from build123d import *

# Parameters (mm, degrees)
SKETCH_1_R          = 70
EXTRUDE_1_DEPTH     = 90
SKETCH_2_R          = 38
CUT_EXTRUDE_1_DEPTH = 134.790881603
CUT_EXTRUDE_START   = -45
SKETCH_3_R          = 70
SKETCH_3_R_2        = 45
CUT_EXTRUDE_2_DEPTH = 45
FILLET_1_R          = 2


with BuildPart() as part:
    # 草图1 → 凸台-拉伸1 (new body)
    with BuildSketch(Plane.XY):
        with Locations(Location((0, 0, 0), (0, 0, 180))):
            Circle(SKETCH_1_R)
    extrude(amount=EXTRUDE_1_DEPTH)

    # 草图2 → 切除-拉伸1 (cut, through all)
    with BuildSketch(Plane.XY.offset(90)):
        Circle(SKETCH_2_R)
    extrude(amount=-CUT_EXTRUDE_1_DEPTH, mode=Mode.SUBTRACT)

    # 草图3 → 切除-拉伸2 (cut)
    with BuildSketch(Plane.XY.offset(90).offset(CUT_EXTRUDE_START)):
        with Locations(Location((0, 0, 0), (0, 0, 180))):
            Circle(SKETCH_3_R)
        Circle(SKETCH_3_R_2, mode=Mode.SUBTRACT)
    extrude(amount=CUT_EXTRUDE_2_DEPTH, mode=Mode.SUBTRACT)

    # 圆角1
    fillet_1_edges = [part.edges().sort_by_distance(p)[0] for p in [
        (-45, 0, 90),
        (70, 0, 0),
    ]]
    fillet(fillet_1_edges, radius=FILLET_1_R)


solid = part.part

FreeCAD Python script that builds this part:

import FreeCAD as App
import Part
import Sketcher
from FreeCAD import Vector
Q = App.Units.Quantity


def edges_at(feature, points):
    """Names of the edges that pass closest to the given points."""
    edges = feature.Shape.Edges
    near = lambda p: min(range(len(edges)), key=lambda i: edges[i].distToShape(Part.Vertex(*p))[0])
    return sorted({f"Edge{near(p) + 1}" for p in points})

doc = App.newDocument("Part")
body = doc.addObject("PartDesign::Body", "Body")

sketch1 = body.newObject("Sketcher::SketchObject", "Sketch")
sketch1.AttachmentSupport = (doc.getObject("XY_Plane"), [""])
sketch1.MapMode = "FlatFace"
sketch1.addGeometry(Part.Circle(Vector(0, 0, 0), Vector(0, 0, 1), 70), False)
sketch1.addConstraint(Sketcher.Constraint("Coincident", 0, 3, -1, 1))
sketch1.addConstraint(Sketcher.Constraint("Diameter", 0, Q("140 mm")))
pad1 = body.newObject("PartDesign::Pad", "Pad")
pad1.Profile = sketch1
pad1.Length = 90

sketch2 = body.newObject("Sketcher::SketchObject", "Sketch001")
sketch2.AttachmentSupport = (doc.getObject("XY_Plane"), [""])
sketch2.MapMode = "FlatFace"
sketch2.AttachmentOffset = App.Placement(Vector(0, 0, 90), App.Rotation())
sketch2.addGeometry(Part.Circle(Vector(0, 0, 0), Vector(0, 0, 1), 38), False)
sketch2.addConstraint(Sketcher.Constraint("Coincident", 0, 3, -1, 1))
sketch2.addConstraint(Sketcher.Constraint("Diameter", 0, Q("76 mm")))
pocket1 = body.newObject("PartDesign::Pocket", "Pocket")
pocket1.Profile = sketch2
pocket1.Type = "ThroughAll"

sketch3 = body.newObject("Sketcher::SketchObject", "Sketch002")
sketch3.AttachmentSupport = (doc.getObject("XY_Plane"), [""])
sketch3.MapMode = "FlatFace"
sketch3.AttachmentOffset = App.Placement(Vector(0, 0, 45), App.Rotation())
sketch3.addGeometry(Part.Circle(Vector(0, 0, 0), Vector(0, 0, 1), 70), False)
sketch3.addGeometry(Part.Circle(Vector(0, 0, 0), Vector(0, 0, 1), 45), False)
sketch3.addConstraint(Sketcher.Constraint("Coincident", 0, 3, -1, 1))
sketch3.addConstraint(Sketcher.Constraint("Coincident", 1, 3, -1, 1))
sketch3.addConstraint(Sketcher.Constraint("Diameter", 0, Q("140 mm")))
sketch3.addConstraint(Sketcher.Constraint("Diameter", 1, Q("90 mm")))
pocket2 = body.newObject("PartDesign::Pocket", "Pocket001")
pocket2.Profile = sketch3
pocket2.Length = 45
pocket2.Reversed = True
doc.recompute()

fillet = body.newObject("PartDesign::Fillet", "Fillet")
fillet.Base = (pocket2, edges_at(pocket2, [(-45, 0, 90), (70, 0, 0)]))
fillet.Radius = 2

doc.recompute()
